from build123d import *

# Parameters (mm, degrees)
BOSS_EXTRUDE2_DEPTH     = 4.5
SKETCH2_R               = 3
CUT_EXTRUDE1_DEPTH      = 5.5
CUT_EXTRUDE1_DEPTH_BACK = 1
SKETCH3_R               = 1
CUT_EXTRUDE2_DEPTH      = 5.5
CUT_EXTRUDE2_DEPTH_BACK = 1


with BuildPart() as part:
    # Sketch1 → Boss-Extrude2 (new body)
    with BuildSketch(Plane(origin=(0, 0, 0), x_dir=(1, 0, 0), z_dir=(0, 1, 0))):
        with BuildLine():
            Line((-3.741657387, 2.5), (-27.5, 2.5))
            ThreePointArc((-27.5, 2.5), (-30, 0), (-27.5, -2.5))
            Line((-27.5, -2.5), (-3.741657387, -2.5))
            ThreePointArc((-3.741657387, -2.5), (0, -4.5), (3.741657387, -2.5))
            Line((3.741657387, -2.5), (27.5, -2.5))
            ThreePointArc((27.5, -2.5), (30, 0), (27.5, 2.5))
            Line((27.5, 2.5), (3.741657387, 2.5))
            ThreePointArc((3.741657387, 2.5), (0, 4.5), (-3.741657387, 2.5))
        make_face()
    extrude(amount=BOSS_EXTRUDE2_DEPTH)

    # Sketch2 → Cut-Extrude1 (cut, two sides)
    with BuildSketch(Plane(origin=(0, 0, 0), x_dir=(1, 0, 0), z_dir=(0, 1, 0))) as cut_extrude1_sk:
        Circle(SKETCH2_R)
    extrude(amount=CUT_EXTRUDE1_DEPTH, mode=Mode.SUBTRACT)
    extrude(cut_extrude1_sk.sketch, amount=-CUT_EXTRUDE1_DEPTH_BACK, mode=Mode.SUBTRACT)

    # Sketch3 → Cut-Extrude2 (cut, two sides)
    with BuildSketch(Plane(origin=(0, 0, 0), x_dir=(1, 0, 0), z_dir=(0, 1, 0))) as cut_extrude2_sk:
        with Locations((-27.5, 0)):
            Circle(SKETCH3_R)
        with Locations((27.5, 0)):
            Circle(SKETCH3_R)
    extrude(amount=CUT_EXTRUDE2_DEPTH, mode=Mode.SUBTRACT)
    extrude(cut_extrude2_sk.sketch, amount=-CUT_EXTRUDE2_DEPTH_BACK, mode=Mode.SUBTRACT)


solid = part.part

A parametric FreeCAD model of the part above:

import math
import FreeCAD as App
import Part
import Sketcher

V = App.Vector
Q = App.Units.Quantity

doc = App.newDocument("Part")
params = doc.addObject("Spreadsheet::Sheet", "Params")
for row, (alias, value) in enumerate([
    ("sketch1_radius", "2.5 mm"),
    ("sketch1_radius2", "4.5 mm"),
    ("pad1_length", "4.5 mm"),
    ("sketch2_diameter", "6 mm"),
    ("sketch3_diameter", "2 mm"),
], start=1):
    params.set(f"A{row}", alias)
    params.set(f"B{row}", "=" + value)
    params.setAlias(f"B{row}", alias)

body = doc.addObject("PartDesign::Body", "Body")

sketch1 = body.newObject("Sketcher::SketchObject", "Sketch")
sketch1.AttachmentSupport = (doc.getObject("XZ_Plane"), [""])
sketch1.MapMode = "FlatFace"
sketch1.addGeometry([
    Part.LineSegment(V(-3.7, -2.5, 0), V(-27.5, -2.5, 0)),
    Part.ArcOfCircle(Part.Circle(V(-27.5, 0, 0), V(0, 0, 1), 2.5), math.radians(90), math.radians(270)),
    Part.LineSegment(V(-27.5, 2.5, 0), V(-3.7, 2.5, 0)),
    Part.ArcOfCircle(Part.Circle(V(0, 0, 0), V(0, 0, 1), 4.5), math.radians(34), math.radians(146)),
    Part.LineSegment(V(3.7, 2.5, 0), V(27.5, 2.5, 0)),
    Part.ArcOfCircle(Part.Circle(V(27.5, 0, 0), V(0, 0, 1), 2.5), math.radians(-90), math.radians(90)),
    Part.LineSegment(V(27.5, -2.5, 0), V(3.7, -2.5, 0)),
    Part.ArcOfCircle(Part.Circle(V(0, 0, 0), V(0, 0, 1), 4.5), math.radians(-146), math.radians(-34)),
], False)
sketch1.addConstraint([
    Sketcher.Constraint("Tangent", 0, 2, 1, 2),
    Sketcher.Constraint("Tangent", 1, 1, 2, 1),
    Sketcher.Constraint("Coincident", 2, 2, 3, 2),
    Sketcher.Constraint("Coincident", 3, 1, 4, 1),
    Sketcher.Constraint("Tangent", 4, 2, 5, 2),
    Sketcher.Constraint("Tangent", 5, 1, 6, 1),
    Sketcher.Constraint("Coincident", 6, 2, 7, 2),
    Sketcher.Constraint("Coincident", 7, 1, 0, 1),
    Sketcher.Constraint("Horizontal", 0),
    Sketcher.Constraint("Horizontal", 2),
    Sketcher.Constraint("Horizontal", 4),
    Sketcher.Constraint("Horizontal", 6),
    Sketcher.Constraint("Coincident", 3, 3, -1, 1),
    Sketcher.Constraint("Coincident", 7, 3, -1, 1),
    Sketcher.Constraint("Equal", 1, 5),
    Sketcher.Constraint("Equal", 3, 7),
    Sketcher.Constraint("Symmetric", 1, 3, 5, 3, -1, 1),
    Sketcher.Constraint("PointOnObject", 1, 3, -1),
    Sketcher.Constraint("Radius", 1, Q("2.5 mm")),
    Sketcher.Constraint("Radius", 3, Q("4.5 mm")),
    Sketcher.Constraint("DistanceX", 1, 3, 5, 3, Q("55 mm")),
])
sketch1.setExpression("Constraints[18]", "Params.sketch1_radius")
sketch1.setExpression("Constraints[19]", "Params.sketch1_radius2")
pad1 = body.newObject("PartDesign::Pad", "Pad")
pad1.Profile = sketch1
pad1.setExpression("Length", "Params.pad1_length")
pad1.Reversed = True

sketch2 = body.newObject("Sketcher::SketchObject", "Sketch001")
sketch2.AttachmentSupport = (doc.getObject("XZ_Plane"), [""])
sketch2.MapMode = "FlatFace"
sketch2.addGeometry(Part.Circle(V(0, 0, 0), V(0, 0, 1), 3), False)
sketch2.addConstraint([
    Sketcher.Constraint("Coincident", 0, 3, -1, 1),
    Sketcher.Constraint("Diameter", 0, Q("6 mm")),
])
sketch2.setExpression("Constraints[1]", "Params.sketch2_diameter")
pocket1 = body.newObject("PartDesign::Pocket", "Pocket")
pocket1.Profile = sketch2
pocket1.Type = "ThroughAll"
pocket1.Midplane = True

sketch3 = body.newObject("Sketcher::SketchObject", "Sketch002")
sketch3.AttachmentSupport = (doc.getObject("XZ_Plane"), [""])
sketch3.MapMode = "FlatFace"
sketch3.addGeometry([
    Part.Circle(V(-27.5, 0, 0), V(0, 0, 1), 1),
    Part.Circle(V(27.5, 0, 0), V(0, 0, 1), 1),
], False)
sketch3.addConstraint([
    Sketcher.Constraint("Equal", 0, 1),
    Sketcher.Constraint("Symmetric", 0, 3, 1, 3, -1, 1),
    Sketcher.Constraint("PointOnObject", 0, 3, -1),
    Sketcher.Constraint("Diameter", 0, Q("2 mm")),
    Sketcher.Constraint("DistanceX", 0, 3, 1, 3, Q("55 mm")),
])
sketch3.setExpression("Constraints[3]", "Params.sketch3_diameter")
pocket2 = body.newObject("PartDesign::Pocket", "Pocket001")
pocket2.Profile = sketch3
pocket2.Type = "ThroughAll"
pocket2.Midplane = True

doc.recompute()
